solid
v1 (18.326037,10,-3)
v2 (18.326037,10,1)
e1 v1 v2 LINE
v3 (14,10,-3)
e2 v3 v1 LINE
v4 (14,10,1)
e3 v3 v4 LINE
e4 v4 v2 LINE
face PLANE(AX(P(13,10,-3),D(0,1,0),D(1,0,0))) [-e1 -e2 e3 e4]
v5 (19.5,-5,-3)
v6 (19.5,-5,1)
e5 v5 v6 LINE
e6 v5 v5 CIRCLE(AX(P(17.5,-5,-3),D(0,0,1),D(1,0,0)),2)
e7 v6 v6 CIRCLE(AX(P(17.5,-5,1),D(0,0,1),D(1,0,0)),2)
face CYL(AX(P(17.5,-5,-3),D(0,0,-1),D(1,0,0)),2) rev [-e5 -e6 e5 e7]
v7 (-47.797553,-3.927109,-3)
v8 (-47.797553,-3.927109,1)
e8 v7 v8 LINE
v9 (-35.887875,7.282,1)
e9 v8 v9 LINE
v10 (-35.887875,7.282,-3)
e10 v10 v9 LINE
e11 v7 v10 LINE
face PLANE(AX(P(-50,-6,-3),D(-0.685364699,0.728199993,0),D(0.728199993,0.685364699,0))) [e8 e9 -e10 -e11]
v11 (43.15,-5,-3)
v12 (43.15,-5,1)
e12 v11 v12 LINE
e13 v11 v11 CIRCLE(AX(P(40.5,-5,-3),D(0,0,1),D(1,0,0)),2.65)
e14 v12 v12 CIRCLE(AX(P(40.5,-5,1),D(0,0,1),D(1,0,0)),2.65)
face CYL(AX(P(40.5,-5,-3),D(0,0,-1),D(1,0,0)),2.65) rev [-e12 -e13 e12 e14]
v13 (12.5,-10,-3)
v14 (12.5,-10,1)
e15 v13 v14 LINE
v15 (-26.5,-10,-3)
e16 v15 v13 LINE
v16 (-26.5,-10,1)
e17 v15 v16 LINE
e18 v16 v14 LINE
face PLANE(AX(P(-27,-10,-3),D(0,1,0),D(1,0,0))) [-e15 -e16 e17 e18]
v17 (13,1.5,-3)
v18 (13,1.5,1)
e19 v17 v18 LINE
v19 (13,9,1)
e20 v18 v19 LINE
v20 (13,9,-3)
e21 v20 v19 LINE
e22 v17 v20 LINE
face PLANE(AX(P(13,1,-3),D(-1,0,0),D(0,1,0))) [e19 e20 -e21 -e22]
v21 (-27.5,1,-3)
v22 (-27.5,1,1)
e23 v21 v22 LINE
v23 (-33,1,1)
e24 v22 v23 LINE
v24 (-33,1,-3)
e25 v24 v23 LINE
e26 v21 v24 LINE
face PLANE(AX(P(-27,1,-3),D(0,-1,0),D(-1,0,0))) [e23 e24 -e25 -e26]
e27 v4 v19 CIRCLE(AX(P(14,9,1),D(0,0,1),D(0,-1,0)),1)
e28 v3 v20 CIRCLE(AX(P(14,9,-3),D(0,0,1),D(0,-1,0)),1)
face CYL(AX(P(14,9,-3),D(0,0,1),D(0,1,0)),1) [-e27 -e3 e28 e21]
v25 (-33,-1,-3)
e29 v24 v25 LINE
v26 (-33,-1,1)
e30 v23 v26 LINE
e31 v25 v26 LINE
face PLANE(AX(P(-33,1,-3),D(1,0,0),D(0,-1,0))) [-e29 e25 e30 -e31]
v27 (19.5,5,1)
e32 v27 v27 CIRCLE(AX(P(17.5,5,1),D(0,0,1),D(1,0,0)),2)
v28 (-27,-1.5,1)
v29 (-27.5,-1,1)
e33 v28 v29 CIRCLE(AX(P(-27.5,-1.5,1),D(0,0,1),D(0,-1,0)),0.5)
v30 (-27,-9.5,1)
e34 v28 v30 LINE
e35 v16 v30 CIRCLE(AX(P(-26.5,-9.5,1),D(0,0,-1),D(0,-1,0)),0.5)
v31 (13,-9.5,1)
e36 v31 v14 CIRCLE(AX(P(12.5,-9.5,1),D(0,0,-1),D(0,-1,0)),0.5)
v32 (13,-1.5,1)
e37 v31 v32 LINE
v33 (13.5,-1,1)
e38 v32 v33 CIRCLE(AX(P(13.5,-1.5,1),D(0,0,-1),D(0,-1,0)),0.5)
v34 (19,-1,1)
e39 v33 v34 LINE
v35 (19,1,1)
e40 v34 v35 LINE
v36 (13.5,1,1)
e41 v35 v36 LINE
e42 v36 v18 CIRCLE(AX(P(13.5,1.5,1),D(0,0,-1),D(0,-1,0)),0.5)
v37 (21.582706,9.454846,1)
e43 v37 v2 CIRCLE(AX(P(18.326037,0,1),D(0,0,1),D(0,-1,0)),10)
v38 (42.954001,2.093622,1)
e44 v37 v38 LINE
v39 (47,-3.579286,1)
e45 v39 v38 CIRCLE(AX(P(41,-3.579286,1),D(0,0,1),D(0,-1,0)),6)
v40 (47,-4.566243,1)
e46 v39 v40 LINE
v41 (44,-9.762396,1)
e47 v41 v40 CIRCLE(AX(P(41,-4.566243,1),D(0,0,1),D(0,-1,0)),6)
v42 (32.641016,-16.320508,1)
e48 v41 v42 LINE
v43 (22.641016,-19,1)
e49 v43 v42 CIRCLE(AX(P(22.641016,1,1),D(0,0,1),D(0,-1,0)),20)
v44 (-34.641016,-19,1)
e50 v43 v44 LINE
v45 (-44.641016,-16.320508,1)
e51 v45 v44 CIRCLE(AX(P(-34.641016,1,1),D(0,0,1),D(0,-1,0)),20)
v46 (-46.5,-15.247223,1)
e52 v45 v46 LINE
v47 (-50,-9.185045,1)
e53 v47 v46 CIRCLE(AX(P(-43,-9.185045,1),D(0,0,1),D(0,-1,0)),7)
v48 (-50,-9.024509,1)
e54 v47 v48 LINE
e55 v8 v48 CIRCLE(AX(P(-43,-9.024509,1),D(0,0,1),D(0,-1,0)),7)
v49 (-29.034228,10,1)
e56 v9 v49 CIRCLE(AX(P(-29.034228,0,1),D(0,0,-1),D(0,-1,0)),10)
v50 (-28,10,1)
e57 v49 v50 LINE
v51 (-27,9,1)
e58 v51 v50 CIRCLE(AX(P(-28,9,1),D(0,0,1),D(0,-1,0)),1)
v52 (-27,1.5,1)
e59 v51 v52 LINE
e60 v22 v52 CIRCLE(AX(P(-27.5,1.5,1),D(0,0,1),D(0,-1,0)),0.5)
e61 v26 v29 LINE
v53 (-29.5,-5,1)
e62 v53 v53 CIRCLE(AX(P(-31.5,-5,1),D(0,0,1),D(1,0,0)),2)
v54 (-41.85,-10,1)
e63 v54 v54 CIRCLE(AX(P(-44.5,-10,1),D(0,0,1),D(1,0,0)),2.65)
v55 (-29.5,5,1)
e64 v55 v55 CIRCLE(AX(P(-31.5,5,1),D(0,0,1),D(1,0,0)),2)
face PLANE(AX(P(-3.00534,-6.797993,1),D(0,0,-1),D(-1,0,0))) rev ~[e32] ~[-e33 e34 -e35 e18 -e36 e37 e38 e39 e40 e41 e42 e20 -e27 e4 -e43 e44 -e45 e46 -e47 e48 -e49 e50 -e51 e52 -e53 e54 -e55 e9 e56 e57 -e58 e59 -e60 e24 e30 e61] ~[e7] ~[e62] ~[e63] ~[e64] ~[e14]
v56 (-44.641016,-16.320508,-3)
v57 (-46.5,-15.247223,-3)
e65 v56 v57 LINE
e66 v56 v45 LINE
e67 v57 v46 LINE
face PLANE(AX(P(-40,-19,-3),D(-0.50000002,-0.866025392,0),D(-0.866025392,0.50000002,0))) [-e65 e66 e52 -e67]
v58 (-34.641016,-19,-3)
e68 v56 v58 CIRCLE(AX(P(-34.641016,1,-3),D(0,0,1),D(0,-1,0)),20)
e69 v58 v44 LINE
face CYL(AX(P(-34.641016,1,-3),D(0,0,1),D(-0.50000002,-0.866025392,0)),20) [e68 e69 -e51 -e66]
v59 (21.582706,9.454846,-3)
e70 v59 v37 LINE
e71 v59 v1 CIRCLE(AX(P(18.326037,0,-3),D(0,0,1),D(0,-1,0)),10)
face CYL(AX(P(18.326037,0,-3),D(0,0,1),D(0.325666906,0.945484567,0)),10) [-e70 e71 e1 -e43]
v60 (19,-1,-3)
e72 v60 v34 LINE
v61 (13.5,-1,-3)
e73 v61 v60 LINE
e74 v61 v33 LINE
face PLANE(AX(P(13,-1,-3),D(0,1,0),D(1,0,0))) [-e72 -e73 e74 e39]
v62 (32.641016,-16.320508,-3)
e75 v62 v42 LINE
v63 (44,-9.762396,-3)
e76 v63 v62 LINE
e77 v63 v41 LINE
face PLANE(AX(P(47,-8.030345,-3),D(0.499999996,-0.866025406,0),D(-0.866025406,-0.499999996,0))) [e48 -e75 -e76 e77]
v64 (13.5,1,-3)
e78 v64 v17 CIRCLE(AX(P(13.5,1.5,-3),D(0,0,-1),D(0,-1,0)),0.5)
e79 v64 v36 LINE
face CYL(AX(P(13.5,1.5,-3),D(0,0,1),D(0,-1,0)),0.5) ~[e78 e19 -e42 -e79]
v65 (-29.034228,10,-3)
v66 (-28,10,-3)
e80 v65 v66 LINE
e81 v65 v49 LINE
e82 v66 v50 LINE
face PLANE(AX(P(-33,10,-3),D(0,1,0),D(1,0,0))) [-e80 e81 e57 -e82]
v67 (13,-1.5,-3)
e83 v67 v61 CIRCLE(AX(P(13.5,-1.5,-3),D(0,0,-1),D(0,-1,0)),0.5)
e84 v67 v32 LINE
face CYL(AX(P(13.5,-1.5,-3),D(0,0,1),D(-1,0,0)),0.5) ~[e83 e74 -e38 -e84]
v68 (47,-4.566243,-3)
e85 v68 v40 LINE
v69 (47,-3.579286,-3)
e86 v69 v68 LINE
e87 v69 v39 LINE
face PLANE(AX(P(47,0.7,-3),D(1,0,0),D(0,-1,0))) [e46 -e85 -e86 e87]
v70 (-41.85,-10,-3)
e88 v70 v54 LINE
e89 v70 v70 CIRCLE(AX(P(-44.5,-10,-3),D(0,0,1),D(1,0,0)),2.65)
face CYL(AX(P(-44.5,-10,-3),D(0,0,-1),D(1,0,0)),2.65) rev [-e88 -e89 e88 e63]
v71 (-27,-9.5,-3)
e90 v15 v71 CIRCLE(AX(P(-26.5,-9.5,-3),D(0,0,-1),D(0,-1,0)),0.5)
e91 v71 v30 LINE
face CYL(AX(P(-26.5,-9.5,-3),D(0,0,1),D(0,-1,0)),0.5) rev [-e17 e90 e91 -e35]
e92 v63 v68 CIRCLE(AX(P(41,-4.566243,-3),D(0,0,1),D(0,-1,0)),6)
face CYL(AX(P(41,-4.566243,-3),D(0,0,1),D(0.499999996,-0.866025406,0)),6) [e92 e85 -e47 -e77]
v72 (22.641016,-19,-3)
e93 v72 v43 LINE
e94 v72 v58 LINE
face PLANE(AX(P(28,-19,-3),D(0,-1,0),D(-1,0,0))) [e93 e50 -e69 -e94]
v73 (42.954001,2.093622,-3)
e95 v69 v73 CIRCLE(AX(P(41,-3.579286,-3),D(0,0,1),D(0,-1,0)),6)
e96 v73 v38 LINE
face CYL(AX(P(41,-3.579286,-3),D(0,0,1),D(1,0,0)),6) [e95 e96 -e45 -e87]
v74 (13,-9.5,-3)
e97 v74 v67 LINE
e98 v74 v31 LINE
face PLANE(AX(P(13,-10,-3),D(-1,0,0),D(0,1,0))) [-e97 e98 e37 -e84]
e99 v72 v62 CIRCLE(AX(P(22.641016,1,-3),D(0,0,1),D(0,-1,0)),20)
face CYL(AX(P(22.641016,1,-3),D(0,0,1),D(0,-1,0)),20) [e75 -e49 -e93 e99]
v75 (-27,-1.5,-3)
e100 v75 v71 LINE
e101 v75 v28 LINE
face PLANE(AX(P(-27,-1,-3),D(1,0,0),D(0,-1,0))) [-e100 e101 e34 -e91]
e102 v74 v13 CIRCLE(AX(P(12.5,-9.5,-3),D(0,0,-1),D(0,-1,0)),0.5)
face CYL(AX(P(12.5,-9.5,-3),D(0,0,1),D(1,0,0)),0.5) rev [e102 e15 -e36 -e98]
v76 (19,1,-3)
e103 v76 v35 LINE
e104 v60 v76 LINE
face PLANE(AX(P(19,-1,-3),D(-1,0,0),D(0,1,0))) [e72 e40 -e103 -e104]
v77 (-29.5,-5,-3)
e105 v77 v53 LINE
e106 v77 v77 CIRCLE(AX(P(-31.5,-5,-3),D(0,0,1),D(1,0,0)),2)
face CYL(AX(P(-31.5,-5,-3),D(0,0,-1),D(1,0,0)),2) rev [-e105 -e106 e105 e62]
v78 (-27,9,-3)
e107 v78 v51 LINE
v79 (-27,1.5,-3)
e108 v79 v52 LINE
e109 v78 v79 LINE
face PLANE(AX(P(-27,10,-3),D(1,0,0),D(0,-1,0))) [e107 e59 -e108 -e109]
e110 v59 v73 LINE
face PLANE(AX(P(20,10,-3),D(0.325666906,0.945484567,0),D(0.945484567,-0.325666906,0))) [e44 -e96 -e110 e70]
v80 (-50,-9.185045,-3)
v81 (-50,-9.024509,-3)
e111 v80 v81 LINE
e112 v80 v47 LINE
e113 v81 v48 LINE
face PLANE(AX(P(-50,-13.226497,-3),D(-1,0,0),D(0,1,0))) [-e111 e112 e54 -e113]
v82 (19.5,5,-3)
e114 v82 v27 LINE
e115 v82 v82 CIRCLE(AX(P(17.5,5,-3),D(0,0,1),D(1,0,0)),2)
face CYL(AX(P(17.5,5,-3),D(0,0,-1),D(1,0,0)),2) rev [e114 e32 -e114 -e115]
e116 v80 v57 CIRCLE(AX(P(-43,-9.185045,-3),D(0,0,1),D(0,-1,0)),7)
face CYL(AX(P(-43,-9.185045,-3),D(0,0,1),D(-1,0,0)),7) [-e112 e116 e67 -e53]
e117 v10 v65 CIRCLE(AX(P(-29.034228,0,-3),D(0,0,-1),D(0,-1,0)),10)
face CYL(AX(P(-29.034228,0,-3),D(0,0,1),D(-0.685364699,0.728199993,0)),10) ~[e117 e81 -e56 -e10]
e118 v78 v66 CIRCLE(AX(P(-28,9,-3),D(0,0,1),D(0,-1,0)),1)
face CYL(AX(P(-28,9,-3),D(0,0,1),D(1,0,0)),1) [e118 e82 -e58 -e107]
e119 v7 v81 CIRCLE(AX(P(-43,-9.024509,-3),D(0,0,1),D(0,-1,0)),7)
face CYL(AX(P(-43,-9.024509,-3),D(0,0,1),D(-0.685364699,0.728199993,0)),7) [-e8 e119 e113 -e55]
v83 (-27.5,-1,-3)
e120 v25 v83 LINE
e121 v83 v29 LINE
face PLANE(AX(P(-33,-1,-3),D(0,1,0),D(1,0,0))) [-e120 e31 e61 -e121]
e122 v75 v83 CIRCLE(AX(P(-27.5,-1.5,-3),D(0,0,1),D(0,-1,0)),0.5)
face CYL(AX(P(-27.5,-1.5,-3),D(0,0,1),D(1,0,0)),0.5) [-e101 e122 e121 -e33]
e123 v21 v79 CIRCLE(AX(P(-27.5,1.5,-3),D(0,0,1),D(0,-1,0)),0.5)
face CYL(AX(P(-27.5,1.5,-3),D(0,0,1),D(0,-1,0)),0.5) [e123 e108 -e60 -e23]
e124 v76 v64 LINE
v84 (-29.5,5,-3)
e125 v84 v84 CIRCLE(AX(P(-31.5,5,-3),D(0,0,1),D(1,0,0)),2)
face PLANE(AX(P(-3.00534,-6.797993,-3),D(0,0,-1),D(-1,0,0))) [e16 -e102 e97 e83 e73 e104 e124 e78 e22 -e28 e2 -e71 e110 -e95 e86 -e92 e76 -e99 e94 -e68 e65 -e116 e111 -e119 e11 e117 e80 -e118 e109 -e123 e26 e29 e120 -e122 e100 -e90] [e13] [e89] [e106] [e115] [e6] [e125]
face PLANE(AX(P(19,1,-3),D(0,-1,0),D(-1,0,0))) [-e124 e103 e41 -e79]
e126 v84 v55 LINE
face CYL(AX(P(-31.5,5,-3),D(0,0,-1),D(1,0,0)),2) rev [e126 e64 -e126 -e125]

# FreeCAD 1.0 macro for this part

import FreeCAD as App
import Part
import Sketcher
Q = App.Units.Quantity


def edges_at(feature, points):
    """Names of the edges that pass closest to the given points."""
    edges = feature.Shape.Edges
    near = lambda p: min(range(len(edges)), key=lambda i: edges[i].distToShape(Part.Vertex(*p))[0])
    return sorted({f"Edge{near(p) + 1}" for p in points})

doc = App.newDocument("Part")
params = doc.addObject("Spreadsheet::Sheet", "Params")
for row, (alias, value) in enumerate([
    ("sketch1_diameter", "4 mm"),
    ("sketch1_diameter2", "5.3 mm"),
    ("sketch1_width", "6 mm"),
    ("sketch1_width2", "68 mm"),
    ("sketch1_width3", "7 mm"),
    ("pad1_length", "4 mm"),
    ("fillet_radius", "7 mm"),
    ("fillet2_radius", "20 mm"),
    ("fillet3_radius", "6 mm"),
    ("fillet4_radius", "10 mm"),
    ("fillet5_radius", "1 mm"),
    ("fillet6_radius", "0.5 mm"),
    ("fillet7_radius", "0.5 mm"),
], start=1):
    params.set(f"A{row}", alias)
    params.set(f"B{row}", "=" + value)
    params.setAlias(f"B{row}", alias)

body = doc.addObject("PartDesign::Body", "Body")

# Sketch on XY plane
sketch1 = body.newObject("Sketcher::SketchObject", "Sketch")
sketch1.AttachmentSupport = (doc.getObject("XY_Plane"), [""])
sketch1.MapMode = "FlatFace"
sketch1.AttachmentOffset = App.Placement(App.Vector(0, 0, -3), App.Rotation())
sketch1.addGeometry([
    Part.LineSegment(App.Vector(-27, 10, 0), App.Vector(-33, 10, 0)),  # 0
    Part.LineSegment(App.Vector(-33, 10, 0), App.Vector(-50, -6, 0)),  # 1
    Part.LineSegment(App.Vector(-50, -6, 0), App.Vector(-50, -13.226497, 0)),  # 2
    Part.LineSegment(App.Vector(-50, -13.226497, 0), App.Vector(-40, -19, 0)),  # 3
    Part.LineSegment(App.Vector(-40, -19, 0), App.Vector(28, -19, 0)),  # 4
    Part.LineSegment(App.Vector(28, -19, 0), App.Vector(47, -8.030345, 0)),  # 5
    Part.LineSegment(App.Vector(47, -8.030345, 0), App.Vector(47, 0.7, 0)),  # 6
    Part.LineSegment(App.Vector(47, 0.7, 0), App.Vector(20, 10, 0)),  # 7
    Part.LineSegment(App.Vector(20, 10, 0), App.Vector(13, 10, 0)),  # 8
    Part.LineSegment(App.Vector(13, 10, 0), App.Vector(13, 1, 0)),  # 9
    Part.LineSegment(App.Vector(13, 1, 0), App.Vector(19, 1, 0)),  # 10
    Part.LineSegment(App.Vector(19, 1, 0), App.Vector(19, -1, 0)),  # 11
    Part.LineSegment(App.Vector(19, -1, 0), App.Vector(13, -1, 0)),  # 12
    Part.LineSegment(App.Vector(13, -1, 0), App.Vector(13, -10, 0)),  # 13
    Part.LineSegment(App.Vector(13, -10, 0), App.Vector(-27, -10, 0)),  # 14
    Part.LineSegment(App.Vector(-27, -10, 0), App.Vector(-27, -1, 0)),  # 15
    Part.LineSegment(App.Vector(-27, -1, 0), App.Vector(-33, -1, 0)),  # 16
    Part.LineSegment(App.Vector(-33, -1, 0), App.Vector(-33, 1, 0)),  # 17
    Part.LineSegment(App.Vector(-33, 1, 0), App.Vector(-27, 1, 0)),  # 18
    Part.LineSegment(App.Vector(-27, 1, 0), App.Vector(-27, 10, 0)),  # 19
    Part.Circle(App.Vector(40.5, -5, 0), App.Vector(0, 0, 1), 2.65),  # 20
    Part.Circle(App.Vector(17.5, -5, 0), App.Vector(0, 0, 1), 2),  # 21
    Part.Circle(App.Vector(-44.5, -10, 0), App.Vector(0, 0, 1), 2.65),  # 22
    Part.Circle(App.Vector(-31.5, -5, 0), App.Vector(0, 0, 1), 2),  # 23
    Part.Circle(App.Vector(17.5, 5, 0), App.Vector(0, 0, 1), 2),  # 24
    Part.Circle(App.Vector(-31.5, 5, 0), App.Vector(0, 0, 1), 2),  # 25
], False)
sketch1.addConstraint([
    Sketcher.Constraint("Coincident", 0, 2, 1, 1),
    Sketcher.Constraint("Coincident", 1, 2, 2, 1),
    Sketcher.Constraint("Coincident", 2, 2, 3, 1),
    Sketcher.Constraint("Coincident", 3, 2, 4, 1),
    Sketcher.Constraint("Coincident", 4, 2, 5, 1),
    Sketcher.Constraint("Coincident", 5, 2, 6, 1),
    Sketcher.Constraint("Coincident", 6, 2, 7, 1),
    Sketcher.Constraint("Coincident", 7, 2, 8, 1),
    Sketcher.Constraint("Coincident", 8, 2, 9, 1),
    Sketcher.Constraint("Coincident", 9, 2, 10, 1),
    Sketcher.Constraint("Coincident", 10, 2, 11, 1),
    Sketcher.Constraint("Coincident", 11, 2, 12, 1),
    Sketcher.Constraint("Coincident", 12, 2, 13, 1),
    Sketcher.Constraint("Coincident", 13, 2, 14, 1),
    Sketcher.Constraint("Coincident", 14, 2, 15, 1),
    Sketcher.Constraint("Coincident", 15, 2, 16, 1),
    Sketcher.Constraint("Coincident", 16, 2, 17, 1),
    Sketcher.Constraint("Coincident", 17, 2, 18, 1),
    Sketcher.Constraint("Coincident", 18, 2, 19, 1),
    Sketcher.Constraint("Coincident", 19, 2, 0, 1),
    Sketcher.Constraint("Horizontal", 0),
    Sketcher.Constraint("Vertical", 2),
    Sketcher.Constraint("Horizontal", 4),
    Sketcher.Constraint("Vertical", 6),
    Sketcher.Constraint("Horizontal", 8),
    Sketcher.Constraint("Vertical", 9),
    Sketcher.Constraint("Horizontal", 10),
    Sketcher.Constraint("Vertical", 11),
    Sketcher.Constraint("Horizontal", 12),
    Sketcher.Constraint("Vertical", 13),
    Sketcher.Constraint("Horizontal", 14),
    Sketcher.Constraint("Vertical", 15),
    Sketcher.Constraint("Horizontal", 16),
    Sketcher.Constraint("Vertical", 17),
    Sketcher.Constraint("Horizontal", 18),
    Sketcher.Constraint("Vertical", 19),
    Sketcher.Constraint("Equal", 20, 22),
    Sketcher.Constraint("Equal", 21, 23),
    Sketcher.Constraint("Equal", 23, 24),
    Sketcher.Constraint("Equal", 24, 25),
    Sketcher.Constraint("Symmetric", 21, 3, 24, 3, -1),
    Sketcher.Constraint("Symmetric", 23, 3, 25, 3, -1),
    Sketcher.Constraint("Symmetric", 9, 2, 12, 2, -1),
    Sketcher.Constraint("Symmetric", 15, 2, 18, 2, -1),
    Sketcher.Constraint("Horizontal", 20, 3, 21, 3),
    Sketcher.Constraint("Horizontal", 21, 3, 23, 3),
    Sketcher.Constraint("Horizontal", 0, 2, 7, 2),
    Sketcher.Constraint("Horizontal", 22, 3, 13, 2),
    Sketcher.Constraint("Horizontal", 12, 2, 15, 2),
    Sketcher.Constraint("Vertical", 0, 2, 16, 2),
    Sketcher.Constraint("Equal", 0, 10),
    Sketcher.Constraint("Equal", 9, 13),
    Sketcher.Constraint("Diameter", 21, Q("4 mm")),
    Sketcher.Constraint("Diameter", 20, Q("5.3 mm")),
    Sketcher.Constraint("DistanceX", 0, 2, 0, 1, Q("6 mm")),
    Sketcher.Constraint("DistanceX", 4, 1, 4, 2, Q("68 mm")),
    Sketcher.Constraint("DistanceX", 8, 2, 8, 1, Q("7 mm")),
    Sketcher.Constraint("DistanceX", 14, 2, 14, 1, Q("40 mm")),
    Sketcher.Constraint("DistanceY", 9, 2, 9, 1, Q("9 mm")),
    Sketcher.Constraint("DistanceY", 11, 2, 11, 1, Q("2 mm")),
    Sketcher.Constraint("Angle", 3, Q("-30.000001 deg")),
    Sketcher.Constraint("Angle", 5, Q("30 deg")),
    Sketcher.Constraint("DistanceY", 20, 3, -1, 1, Q("5 mm")),
    Sketcher.Constraint("DistanceX", 0, 2, -1, 1, Q("33 mm")),
    Sketcher.Constraint("DistanceX", 1, 2, -1, 1, Q("50 mm")),
    Sketcher.Constraint("DistanceY", 1, 2, -1, 1, Q("6 mm")),
    Sketcher.Constraint("DistanceX", 3, 2, -1, 1, Q("40 mm")),
    Sketcher.Constraint("DistanceY", 3, 2, -1, 1, Q("19 mm")),
    Sketcher.Constraint("DistanceX", -1, 1, 5, 2, Q("47 mm")),
    Sketcher.Constraint("DistanceX", 21, 3, 20, 3, Q("23 mm")),
    Sketcher.Constraint("DistanceX", 22, 3, 21, 3, Q("62 mm")),
    Sketcher.Constraint("DistanceX", 22, 3, 23, 3, Q("13 mm")),
    Sketcher.Constraint("DistanceX", -1, 1, 20, 3, Q("40.5 mm")),
    Sketcher.Constraint("DistanceY", -1, 1, 6, 2, Q("0.7 mm")),
])
sketch1.setExpression("Constraints[52]", "Params.sketch1_diameter")
sketch1.setExpression("Constraints[53]", "Params.sketch1_diameter2")
sketch1.setExpression("Constraints[54]", "Params.sketch1_width")
sketch1.setExpression("Constraints[55]", "Params.sketch1_width2")
sketch1.setExpression("Constraints[56]", "Params.sketch1_width3")
pad1 = body.newObject("PartDesign::Pad", "Pad")
pad1.Profile = sketch1
pad1.setExpression("Length", "Params.pad1_length")
doc.recompute()

fillet = body.newObject("PartDesign::Fillet", "Fillet")
fillet.Base = (pad1, edges_at(pad1, [(-50, -13.226, -1), (-50, -6, -1)]))
fillet.setExpression("Radius", "Params.fillet_radius")
doc.recompute()

fillet2 = body.newObject("PartDesign::Fillet", "Fillet001")
fillet2.Base = (fillet, edges_at(fillet, [(-40, -19, -1), (28, -19, -1)]))
fillet2.setExpression("Radius", "Params.fillet2_radius")
doc.recompute()

fillet3 = body.newObject("PartDesign::Fillet", "Fillet002")
fillet3.Base = (fillet2, edges_at(fillet2, [(47, -8.03, -1), (47, 0.7, -1)]))
fillet3.setExpression("Radius", "Params.fillet3_radius")
doc.recompute()

fillet4 = body.newObject("PartDesign::Fillet", "Fillet003")
fillet4.Base = (fillet3, edges_at(fillet3, [(-33, 10, -1), (20, 10, -1)]))
fillet4.setExpression("Radius", "Params.fillet4_radius")
doc.recompute()

fillet5 = body.newObject("PartDesign::Fillet", "Fillet004")
fillet5.Base = (fillet4, edges_at(fillet4, [(13, 10, -1), (-27, 10, -1)]))
fillet5.setExpression("Radius", "Params.fillet5_radius")
doc.recompute()

fillet6 = body.newObject("PartDesign::Fillet", "Fillet005")
fillet6.Base = (fillet5, edges_at(fillet5, [(13, -10, -1), (-27, -10, -1)]))
fillet6.setExpression("Radius", "Params.fillet6_radius")
doc.recompute()

fillet7 = body.newObject("PartDesign::Fillet", "Fillet006")
fillet7.Base = (fillet6, edges_at(fillet6, [
    (-27, -1, -1),
    (-27, 1, -1),
    (13, -1, -1),
    (13, 1, -1),
]))
fillet7.setExpression("Radius", "Params.fillet7_radius")

doc.recompute()
